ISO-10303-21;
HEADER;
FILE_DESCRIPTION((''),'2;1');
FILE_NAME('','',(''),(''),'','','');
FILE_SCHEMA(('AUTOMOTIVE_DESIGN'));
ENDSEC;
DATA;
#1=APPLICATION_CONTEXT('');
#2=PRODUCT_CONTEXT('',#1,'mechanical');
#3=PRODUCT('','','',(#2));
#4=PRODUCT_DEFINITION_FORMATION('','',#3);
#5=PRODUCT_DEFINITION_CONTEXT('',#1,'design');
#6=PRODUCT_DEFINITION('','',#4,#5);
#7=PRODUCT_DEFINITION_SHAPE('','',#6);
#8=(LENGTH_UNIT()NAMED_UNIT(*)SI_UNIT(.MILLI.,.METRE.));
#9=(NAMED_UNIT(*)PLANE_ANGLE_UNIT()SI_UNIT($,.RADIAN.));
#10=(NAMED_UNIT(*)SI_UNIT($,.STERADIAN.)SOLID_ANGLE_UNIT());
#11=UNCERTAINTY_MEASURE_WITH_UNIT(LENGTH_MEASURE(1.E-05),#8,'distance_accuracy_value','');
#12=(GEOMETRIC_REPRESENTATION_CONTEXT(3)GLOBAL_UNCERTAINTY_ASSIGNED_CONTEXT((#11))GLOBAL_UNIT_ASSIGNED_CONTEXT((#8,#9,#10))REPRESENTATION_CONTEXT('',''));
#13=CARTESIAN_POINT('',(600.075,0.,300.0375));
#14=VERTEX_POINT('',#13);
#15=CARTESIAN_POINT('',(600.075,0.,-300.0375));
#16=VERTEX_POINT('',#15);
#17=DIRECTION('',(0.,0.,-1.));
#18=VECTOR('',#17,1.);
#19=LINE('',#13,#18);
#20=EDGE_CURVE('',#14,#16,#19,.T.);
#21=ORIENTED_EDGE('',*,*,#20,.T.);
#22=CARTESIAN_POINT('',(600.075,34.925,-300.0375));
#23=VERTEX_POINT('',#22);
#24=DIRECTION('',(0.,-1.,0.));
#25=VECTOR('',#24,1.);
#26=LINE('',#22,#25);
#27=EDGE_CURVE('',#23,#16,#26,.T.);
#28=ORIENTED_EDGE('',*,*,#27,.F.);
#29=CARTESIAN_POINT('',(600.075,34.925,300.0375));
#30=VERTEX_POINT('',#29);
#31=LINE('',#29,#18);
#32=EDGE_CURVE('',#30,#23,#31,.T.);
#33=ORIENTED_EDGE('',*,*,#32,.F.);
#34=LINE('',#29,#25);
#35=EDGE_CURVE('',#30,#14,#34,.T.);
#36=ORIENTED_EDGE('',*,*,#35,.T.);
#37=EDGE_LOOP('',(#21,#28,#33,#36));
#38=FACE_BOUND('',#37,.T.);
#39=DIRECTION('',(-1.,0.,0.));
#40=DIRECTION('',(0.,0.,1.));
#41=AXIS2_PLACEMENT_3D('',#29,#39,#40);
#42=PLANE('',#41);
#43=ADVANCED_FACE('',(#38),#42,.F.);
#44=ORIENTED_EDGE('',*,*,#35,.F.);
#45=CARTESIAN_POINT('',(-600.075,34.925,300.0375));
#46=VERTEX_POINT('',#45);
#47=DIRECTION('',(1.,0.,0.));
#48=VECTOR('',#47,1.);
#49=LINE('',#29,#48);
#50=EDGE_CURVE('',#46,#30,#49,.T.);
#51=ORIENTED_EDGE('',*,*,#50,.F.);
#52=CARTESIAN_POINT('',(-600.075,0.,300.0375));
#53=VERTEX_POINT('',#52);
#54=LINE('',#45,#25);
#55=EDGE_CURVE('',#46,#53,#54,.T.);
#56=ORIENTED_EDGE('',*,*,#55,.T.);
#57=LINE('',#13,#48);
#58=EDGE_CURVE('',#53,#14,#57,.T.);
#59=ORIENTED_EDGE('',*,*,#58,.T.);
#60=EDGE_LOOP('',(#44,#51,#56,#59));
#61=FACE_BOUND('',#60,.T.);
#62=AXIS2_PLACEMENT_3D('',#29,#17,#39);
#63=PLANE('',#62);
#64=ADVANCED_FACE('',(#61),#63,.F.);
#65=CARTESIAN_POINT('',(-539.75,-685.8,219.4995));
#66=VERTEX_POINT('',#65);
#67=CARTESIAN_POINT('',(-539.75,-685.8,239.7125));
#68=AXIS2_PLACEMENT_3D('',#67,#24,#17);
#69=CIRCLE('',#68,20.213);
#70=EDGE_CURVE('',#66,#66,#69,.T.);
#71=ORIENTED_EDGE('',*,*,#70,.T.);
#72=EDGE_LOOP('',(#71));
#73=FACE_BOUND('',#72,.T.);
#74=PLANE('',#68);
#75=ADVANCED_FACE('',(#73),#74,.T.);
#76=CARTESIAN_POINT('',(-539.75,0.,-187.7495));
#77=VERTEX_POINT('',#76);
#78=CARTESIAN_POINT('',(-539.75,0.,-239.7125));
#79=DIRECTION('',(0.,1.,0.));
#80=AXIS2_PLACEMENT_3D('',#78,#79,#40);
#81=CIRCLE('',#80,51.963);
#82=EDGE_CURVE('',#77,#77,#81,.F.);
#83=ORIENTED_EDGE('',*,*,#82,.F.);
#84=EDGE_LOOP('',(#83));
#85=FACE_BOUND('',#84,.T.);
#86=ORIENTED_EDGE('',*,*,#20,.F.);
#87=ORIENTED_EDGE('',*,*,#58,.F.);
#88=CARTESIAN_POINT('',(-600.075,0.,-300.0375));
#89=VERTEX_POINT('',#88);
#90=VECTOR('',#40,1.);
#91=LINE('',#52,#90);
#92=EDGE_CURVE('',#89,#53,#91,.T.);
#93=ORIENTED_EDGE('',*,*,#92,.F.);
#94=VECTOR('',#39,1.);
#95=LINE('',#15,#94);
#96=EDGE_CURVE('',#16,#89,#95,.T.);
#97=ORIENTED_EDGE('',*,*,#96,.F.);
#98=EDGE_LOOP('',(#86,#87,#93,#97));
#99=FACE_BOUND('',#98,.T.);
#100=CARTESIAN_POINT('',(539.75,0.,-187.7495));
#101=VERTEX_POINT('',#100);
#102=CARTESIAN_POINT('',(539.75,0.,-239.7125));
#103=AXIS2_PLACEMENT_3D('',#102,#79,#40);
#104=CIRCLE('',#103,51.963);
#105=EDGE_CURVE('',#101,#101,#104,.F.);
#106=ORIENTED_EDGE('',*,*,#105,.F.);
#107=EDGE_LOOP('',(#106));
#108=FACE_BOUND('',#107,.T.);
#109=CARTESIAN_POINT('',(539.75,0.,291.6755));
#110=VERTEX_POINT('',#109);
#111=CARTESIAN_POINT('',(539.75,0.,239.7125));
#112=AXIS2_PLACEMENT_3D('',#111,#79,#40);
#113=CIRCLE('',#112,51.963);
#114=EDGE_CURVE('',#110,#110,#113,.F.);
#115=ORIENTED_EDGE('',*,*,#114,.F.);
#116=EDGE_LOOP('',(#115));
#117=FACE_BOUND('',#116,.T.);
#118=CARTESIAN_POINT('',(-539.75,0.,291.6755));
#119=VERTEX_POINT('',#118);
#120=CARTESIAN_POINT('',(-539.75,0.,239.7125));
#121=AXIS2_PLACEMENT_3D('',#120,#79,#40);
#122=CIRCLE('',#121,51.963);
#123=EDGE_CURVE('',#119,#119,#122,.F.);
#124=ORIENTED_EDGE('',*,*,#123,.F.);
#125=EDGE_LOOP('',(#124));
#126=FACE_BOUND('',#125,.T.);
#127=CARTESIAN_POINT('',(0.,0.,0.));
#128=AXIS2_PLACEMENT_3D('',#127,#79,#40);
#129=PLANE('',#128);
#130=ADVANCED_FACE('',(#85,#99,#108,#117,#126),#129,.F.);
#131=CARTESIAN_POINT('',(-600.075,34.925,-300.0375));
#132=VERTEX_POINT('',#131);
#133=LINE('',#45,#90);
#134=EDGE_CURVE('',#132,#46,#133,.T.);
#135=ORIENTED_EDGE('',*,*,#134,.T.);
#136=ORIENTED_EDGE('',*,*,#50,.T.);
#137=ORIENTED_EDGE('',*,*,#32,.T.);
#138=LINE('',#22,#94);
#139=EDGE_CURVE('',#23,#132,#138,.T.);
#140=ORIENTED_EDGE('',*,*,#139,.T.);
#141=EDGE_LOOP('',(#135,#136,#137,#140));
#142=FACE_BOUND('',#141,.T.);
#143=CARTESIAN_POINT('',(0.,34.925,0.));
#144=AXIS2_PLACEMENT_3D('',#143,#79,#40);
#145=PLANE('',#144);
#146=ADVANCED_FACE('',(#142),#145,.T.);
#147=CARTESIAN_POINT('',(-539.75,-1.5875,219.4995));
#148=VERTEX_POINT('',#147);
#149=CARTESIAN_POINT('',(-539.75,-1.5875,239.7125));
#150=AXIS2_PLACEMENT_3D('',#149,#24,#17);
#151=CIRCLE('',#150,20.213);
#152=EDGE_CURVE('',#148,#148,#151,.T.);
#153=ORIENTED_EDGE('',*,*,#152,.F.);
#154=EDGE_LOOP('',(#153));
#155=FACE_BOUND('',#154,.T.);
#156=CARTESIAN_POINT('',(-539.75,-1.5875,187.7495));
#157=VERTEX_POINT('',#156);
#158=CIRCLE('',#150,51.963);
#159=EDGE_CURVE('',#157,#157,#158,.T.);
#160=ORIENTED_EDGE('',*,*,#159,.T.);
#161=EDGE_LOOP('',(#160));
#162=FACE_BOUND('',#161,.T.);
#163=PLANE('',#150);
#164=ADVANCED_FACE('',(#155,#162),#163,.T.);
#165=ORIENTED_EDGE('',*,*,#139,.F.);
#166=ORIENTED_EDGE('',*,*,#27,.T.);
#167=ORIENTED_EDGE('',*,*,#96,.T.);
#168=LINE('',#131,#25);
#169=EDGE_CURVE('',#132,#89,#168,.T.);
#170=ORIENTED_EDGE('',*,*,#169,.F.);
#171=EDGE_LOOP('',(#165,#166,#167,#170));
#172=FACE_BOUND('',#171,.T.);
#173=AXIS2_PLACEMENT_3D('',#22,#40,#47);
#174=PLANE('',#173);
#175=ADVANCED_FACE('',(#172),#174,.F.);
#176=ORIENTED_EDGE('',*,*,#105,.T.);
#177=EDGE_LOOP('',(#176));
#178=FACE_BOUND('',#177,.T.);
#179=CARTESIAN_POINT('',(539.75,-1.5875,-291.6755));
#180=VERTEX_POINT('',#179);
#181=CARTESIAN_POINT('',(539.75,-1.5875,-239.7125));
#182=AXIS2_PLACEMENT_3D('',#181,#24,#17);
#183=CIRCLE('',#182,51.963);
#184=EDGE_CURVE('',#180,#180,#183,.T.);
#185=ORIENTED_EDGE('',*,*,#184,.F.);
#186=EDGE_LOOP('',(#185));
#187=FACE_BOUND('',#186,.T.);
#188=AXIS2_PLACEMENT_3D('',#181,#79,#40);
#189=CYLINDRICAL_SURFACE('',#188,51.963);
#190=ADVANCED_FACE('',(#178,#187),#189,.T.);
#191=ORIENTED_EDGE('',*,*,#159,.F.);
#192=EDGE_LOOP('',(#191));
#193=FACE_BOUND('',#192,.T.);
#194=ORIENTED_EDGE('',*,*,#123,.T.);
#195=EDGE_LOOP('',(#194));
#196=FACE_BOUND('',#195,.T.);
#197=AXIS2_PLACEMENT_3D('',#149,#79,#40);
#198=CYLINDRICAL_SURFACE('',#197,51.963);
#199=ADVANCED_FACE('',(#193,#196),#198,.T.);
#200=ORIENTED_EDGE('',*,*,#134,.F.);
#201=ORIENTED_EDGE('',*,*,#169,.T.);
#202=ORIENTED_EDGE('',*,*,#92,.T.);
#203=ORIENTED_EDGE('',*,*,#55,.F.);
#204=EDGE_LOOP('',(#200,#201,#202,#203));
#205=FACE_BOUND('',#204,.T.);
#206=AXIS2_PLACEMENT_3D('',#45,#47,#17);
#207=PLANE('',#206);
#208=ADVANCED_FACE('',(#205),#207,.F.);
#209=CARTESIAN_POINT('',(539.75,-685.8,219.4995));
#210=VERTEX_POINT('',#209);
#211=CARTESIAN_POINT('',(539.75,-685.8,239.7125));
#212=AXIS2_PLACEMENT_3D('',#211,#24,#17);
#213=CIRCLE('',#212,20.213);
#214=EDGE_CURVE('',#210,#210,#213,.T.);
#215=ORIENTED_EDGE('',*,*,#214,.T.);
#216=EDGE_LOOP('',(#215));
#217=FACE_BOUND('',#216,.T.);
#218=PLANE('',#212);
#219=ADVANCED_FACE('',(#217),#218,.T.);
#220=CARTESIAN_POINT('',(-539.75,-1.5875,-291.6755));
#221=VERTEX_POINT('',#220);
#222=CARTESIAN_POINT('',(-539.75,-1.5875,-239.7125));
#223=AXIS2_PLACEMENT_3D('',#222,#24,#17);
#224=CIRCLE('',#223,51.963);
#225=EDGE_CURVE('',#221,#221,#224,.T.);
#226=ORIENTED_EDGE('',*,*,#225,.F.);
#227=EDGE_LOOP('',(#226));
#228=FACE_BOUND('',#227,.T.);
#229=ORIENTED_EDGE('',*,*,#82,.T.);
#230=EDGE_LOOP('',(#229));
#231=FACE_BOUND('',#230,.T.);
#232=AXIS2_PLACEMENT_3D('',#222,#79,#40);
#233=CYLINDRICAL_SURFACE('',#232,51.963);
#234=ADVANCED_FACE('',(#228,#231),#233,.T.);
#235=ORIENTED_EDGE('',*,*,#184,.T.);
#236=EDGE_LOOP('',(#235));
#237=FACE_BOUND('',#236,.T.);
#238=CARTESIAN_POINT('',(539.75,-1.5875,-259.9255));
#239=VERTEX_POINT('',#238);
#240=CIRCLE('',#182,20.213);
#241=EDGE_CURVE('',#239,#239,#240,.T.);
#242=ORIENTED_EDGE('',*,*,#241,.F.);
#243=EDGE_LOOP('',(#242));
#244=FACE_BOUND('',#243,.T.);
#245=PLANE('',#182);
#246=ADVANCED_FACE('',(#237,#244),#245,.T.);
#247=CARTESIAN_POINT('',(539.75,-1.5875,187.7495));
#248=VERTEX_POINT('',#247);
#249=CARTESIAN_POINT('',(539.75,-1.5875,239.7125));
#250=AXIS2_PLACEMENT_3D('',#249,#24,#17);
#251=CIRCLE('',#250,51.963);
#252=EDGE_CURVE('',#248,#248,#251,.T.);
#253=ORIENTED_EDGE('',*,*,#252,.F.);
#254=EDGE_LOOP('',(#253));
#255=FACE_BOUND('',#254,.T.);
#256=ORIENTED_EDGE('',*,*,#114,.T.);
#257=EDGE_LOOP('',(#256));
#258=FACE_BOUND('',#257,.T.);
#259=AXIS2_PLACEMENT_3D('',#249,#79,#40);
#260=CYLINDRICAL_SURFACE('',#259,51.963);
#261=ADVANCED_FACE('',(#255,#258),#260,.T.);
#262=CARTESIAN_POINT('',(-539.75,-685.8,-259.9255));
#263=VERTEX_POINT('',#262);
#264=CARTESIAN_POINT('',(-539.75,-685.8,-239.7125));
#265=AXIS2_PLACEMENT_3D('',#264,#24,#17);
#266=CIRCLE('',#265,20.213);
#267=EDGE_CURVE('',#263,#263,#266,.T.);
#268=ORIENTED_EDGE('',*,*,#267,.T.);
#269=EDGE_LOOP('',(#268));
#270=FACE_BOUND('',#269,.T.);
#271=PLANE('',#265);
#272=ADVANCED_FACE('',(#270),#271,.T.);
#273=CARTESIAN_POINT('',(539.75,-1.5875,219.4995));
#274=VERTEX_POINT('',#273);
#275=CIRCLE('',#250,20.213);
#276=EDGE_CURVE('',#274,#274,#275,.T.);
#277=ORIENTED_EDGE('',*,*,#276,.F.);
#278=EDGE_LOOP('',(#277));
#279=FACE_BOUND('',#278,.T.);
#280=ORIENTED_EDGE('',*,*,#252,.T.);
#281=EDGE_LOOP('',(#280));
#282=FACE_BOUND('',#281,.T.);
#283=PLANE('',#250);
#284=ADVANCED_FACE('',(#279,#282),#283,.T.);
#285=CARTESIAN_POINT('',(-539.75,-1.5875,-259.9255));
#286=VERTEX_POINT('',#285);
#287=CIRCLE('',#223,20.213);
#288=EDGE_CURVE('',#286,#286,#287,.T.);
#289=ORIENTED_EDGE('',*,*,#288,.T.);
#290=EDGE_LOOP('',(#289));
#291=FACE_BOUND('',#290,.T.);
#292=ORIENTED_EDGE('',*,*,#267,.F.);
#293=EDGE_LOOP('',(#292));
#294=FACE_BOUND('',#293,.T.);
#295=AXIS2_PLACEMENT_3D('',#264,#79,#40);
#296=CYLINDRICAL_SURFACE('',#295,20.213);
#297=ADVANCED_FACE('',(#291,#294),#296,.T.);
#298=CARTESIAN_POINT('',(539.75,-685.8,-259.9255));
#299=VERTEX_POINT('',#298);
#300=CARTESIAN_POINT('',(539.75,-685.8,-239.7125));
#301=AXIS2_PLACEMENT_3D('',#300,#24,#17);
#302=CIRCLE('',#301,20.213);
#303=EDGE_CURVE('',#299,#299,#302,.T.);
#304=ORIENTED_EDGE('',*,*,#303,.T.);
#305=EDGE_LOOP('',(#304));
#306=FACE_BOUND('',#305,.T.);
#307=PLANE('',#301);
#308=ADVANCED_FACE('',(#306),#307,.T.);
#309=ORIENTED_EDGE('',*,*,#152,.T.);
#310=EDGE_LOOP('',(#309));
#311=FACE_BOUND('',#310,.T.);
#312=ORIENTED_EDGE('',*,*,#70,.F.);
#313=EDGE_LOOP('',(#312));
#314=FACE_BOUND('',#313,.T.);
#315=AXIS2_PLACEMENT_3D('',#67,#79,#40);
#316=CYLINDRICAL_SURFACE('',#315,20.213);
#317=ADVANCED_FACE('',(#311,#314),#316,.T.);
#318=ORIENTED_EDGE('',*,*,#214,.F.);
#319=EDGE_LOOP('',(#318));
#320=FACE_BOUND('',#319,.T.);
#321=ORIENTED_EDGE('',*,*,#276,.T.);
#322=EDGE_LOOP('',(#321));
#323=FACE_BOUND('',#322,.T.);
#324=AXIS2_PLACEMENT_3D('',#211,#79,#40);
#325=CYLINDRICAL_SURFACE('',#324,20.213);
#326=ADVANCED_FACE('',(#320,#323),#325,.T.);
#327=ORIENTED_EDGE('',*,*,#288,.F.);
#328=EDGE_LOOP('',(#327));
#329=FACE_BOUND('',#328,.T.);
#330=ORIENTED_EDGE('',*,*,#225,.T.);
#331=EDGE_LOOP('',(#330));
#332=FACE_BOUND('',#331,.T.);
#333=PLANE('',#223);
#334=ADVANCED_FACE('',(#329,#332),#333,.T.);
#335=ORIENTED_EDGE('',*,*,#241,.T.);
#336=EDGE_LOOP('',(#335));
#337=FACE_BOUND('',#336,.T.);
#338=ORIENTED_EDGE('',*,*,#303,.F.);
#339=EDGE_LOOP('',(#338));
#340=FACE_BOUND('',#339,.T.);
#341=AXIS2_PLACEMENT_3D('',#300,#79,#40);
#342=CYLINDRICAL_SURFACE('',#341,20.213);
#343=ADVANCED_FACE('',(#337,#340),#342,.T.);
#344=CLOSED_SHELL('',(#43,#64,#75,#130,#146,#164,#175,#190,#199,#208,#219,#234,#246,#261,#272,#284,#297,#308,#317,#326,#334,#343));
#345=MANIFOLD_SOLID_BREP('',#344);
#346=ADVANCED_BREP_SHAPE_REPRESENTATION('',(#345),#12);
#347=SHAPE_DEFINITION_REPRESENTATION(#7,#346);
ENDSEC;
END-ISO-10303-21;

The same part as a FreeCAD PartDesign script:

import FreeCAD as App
import Part
import Sketcher
from FreeCAD import Vector
Q = App.Units.Quantity


def add_polygon(sketch, points):
    """Adds a closed chain of lines whose ends are joined by coincident constraints."""
    first, n = sketch.GeometryCount, len(points)
    for a, b in zip(points, points[1:] + points[:1]):
        sketch.addGeometry(Part.LineSegment(App.Vector(*a, 0), App.Vector(*b, 0)), False)
    for i in range(n):
        sketch.addConstraint(Sketcher.Constraint("Coincident", first + i, 2, first + (i + 1) % n, 1))

doc = App.newDocument("Part")
params = doc.addObject("Spreadsheet::Sheet", "Params")
for row, (alias, value) in enumerate([
    ("sketch1_width", "47.25 in"),
    ("sketch1_height", "23.625 in"),
    ("pad1_length", "1.375 in"),
    ("pad2_length", "27 in"),
    ("pad3_length", "0.0625 in"),
], start=1):
    params.set(f"A{row}", alias)
    params.set(f"B{row}", "=" + value)
    params.setAlias(f"B{row}", alias)

body = doc.addObject("PartDesign::Body", "Body")

sketch1 = body.newObject("Sketcher::SketchObject", "Sketch")
sketch1.AttachmentSupport = (doc.getObject("XZ_Plane"), [""])
sketch1.MapMode = "FlatFace"
add_polygon(sketch1, [(-600.075, -300.0375), (-600.075, 300.0375), (600.075, 300.0375), (600.075, -300.0375)])
sketch1.addConstraint(Sketcher.Constraint("Vertical", 0))
sketch1.addConstraint(Sketcher.Constraint("Horizontal", 1))
sketch1.addConstraint(Sketcher.Constraint("Vertical", 2))
sketch1.addConstraint(Sketcher.Constraint("Horizontal", 3))
sketch1.addConstraint(Sketcher.Constraint("Symmetric", 0, 2, 2, 2, -1, 1))
sketch1.addConstraint(Sketcher.Constraint("DistanceX", 1, 1, 1, 2, Q("47.25 in")))
sketch1.addConstraint(Sketcher.Constraint("DistanceY", 0, 1, 0, 2, Q("23.625 in")))
sketch1.setExpression("Constraints[9]", "Params.sketch1_width")
sketch1.setExpression("Constraints[10]", "Params.sketch1_height")
pad1 = body.newObject("PartDesign::Pad", "Pad")
pad1.Profile = sketch1
pad1.setExpression("Length", "Params.pad1_length")
pad1.Reversed = True

sketch2 = body.newObject("Sketcher::SketchObject", "Sketch001")
sketch2.AttachmentSupport = (doc.getObject("XZ_Plane"), [""])
sketch2.MapMode = "FlatFace"
sketch2.addGeometry(Part.Circle(Vector(-539.75, 239.7125, 0), Vector(0, 0, 1), 20.213), False)
sketch2.addGeometry(Part.Circle(Vector(539.75, 239.7125, 0), Vector(0, 0, 1), 20.213), False)
sketch2.addGeometry(Part.Circle(Vector(-539.75, -239.7125, 0), Vector(0, 0, 1), 20.213), False)
sketch2.addGeometry(Part.Circle(Vector(539.75, -239.7125, 0), Vector(0, 0, 1), 20.213), False)
sketch2.addConstraint(Sketcher.Constraint("Equal", 0, 1))
sketch2.addConstraint(Sketcher.Constraint("Equal", 1, 2))
sketch2.addConstraint(Sketcher.Constraint("Equal", 2, 3))
sketch2.addConstraint(Sketcher.Constraint("Symmetric", 1, 3, 2, 3, -1, 1))
sketch2.addConstraint(Sketcher.Constraint("Symmetric", 0, 3, 3, 3, -1, 1))
sketch2.addConstraint(Sketcher.Constraint("Symmetric", 0, 3, 1, 3, -2))
sketch2.addConstraint(Sketcher.Constraint("DistanceX", 0, 3, 1, 3, Q("42.5 in")))
sketch2.addConstraint(Sketcher.Constraint("Diameter", 0, Q("40.426 mm")))
sketch2.addConstraint(Sketcher.Constraint("DistanceY", -1, 1, 0, 3, Q("9.4375 in")))
pad2 = body.newObject("PartDesign::Pad", "Pad001")
pad2.Profile = sketch2
pad2.setExpression("Length", "Params.pad2_length")

sketch3 = body.newObject("Sketcher::SketchObject", "Sketch002")
sketch3.AttachmentSupport = (doc.getObject("XZ_Plane"), [""])
sketch3.MapMode = "FlatFace"
sketch3.addGeometry(Part.Circle(Vector(-539.75, 239.7125, 0), Vector(0, 0, 1), 51.963), False)
sketch3.addGeometry(Part.Circle(Vector(539.75, 239.7125, 0), Vector(0, 0, 1), 51.963), False)
sketch3.addGeometry(Part.Circle(Vector(539.75, -239.7125, 0), Vector(0, 0, 1), 51.963), False)
sketch3.addGeometry(Part.Circle(Vector(-539.75, -239.7125, 0), Vector(0, 0, 1), 51.963), False)
sketch3.addConstraint(Sketcher.Constraint("Equal", 0, 1))
sketch3.addConstraint(Sketcher.Constraint("Equal", 1, 2))
sketch3.addConstraint(Sketcher.Constraint("Equal", 2, 3))
sketch3.addConstraint(Sketcher.Constraint("Symmetric", 0, 3, 2, 3, -1, 1))
sketch3.addConstraint(Sketcher.Constraint("Symmetric", 1, 3, 3, 3, -1, 1))
sketch3.addConstraint(Sketcher.Constraint("Symmetric", 0, 3, 1, 3, -2))
sketch3.addConstraint(Sketcher.Constraint("DistanceX", 0, 3, 1, 3, Q("42.5 in")))
sketch3.addConstraint(Sketcher.Constraint("Diameter", 0, Q("103.926 mm")))
sketch3.addConstraint(Sketcher.Constraint("DistanceY", -1, 1, 0, 3, Q("9.4375 in")))
pad3 = body.newObject("PartDesign::Pad", "Pad002")
pad3.Profile = sketch3
pad3.setExpression("Length", "Params.pad3_length")

doc.recompute()
